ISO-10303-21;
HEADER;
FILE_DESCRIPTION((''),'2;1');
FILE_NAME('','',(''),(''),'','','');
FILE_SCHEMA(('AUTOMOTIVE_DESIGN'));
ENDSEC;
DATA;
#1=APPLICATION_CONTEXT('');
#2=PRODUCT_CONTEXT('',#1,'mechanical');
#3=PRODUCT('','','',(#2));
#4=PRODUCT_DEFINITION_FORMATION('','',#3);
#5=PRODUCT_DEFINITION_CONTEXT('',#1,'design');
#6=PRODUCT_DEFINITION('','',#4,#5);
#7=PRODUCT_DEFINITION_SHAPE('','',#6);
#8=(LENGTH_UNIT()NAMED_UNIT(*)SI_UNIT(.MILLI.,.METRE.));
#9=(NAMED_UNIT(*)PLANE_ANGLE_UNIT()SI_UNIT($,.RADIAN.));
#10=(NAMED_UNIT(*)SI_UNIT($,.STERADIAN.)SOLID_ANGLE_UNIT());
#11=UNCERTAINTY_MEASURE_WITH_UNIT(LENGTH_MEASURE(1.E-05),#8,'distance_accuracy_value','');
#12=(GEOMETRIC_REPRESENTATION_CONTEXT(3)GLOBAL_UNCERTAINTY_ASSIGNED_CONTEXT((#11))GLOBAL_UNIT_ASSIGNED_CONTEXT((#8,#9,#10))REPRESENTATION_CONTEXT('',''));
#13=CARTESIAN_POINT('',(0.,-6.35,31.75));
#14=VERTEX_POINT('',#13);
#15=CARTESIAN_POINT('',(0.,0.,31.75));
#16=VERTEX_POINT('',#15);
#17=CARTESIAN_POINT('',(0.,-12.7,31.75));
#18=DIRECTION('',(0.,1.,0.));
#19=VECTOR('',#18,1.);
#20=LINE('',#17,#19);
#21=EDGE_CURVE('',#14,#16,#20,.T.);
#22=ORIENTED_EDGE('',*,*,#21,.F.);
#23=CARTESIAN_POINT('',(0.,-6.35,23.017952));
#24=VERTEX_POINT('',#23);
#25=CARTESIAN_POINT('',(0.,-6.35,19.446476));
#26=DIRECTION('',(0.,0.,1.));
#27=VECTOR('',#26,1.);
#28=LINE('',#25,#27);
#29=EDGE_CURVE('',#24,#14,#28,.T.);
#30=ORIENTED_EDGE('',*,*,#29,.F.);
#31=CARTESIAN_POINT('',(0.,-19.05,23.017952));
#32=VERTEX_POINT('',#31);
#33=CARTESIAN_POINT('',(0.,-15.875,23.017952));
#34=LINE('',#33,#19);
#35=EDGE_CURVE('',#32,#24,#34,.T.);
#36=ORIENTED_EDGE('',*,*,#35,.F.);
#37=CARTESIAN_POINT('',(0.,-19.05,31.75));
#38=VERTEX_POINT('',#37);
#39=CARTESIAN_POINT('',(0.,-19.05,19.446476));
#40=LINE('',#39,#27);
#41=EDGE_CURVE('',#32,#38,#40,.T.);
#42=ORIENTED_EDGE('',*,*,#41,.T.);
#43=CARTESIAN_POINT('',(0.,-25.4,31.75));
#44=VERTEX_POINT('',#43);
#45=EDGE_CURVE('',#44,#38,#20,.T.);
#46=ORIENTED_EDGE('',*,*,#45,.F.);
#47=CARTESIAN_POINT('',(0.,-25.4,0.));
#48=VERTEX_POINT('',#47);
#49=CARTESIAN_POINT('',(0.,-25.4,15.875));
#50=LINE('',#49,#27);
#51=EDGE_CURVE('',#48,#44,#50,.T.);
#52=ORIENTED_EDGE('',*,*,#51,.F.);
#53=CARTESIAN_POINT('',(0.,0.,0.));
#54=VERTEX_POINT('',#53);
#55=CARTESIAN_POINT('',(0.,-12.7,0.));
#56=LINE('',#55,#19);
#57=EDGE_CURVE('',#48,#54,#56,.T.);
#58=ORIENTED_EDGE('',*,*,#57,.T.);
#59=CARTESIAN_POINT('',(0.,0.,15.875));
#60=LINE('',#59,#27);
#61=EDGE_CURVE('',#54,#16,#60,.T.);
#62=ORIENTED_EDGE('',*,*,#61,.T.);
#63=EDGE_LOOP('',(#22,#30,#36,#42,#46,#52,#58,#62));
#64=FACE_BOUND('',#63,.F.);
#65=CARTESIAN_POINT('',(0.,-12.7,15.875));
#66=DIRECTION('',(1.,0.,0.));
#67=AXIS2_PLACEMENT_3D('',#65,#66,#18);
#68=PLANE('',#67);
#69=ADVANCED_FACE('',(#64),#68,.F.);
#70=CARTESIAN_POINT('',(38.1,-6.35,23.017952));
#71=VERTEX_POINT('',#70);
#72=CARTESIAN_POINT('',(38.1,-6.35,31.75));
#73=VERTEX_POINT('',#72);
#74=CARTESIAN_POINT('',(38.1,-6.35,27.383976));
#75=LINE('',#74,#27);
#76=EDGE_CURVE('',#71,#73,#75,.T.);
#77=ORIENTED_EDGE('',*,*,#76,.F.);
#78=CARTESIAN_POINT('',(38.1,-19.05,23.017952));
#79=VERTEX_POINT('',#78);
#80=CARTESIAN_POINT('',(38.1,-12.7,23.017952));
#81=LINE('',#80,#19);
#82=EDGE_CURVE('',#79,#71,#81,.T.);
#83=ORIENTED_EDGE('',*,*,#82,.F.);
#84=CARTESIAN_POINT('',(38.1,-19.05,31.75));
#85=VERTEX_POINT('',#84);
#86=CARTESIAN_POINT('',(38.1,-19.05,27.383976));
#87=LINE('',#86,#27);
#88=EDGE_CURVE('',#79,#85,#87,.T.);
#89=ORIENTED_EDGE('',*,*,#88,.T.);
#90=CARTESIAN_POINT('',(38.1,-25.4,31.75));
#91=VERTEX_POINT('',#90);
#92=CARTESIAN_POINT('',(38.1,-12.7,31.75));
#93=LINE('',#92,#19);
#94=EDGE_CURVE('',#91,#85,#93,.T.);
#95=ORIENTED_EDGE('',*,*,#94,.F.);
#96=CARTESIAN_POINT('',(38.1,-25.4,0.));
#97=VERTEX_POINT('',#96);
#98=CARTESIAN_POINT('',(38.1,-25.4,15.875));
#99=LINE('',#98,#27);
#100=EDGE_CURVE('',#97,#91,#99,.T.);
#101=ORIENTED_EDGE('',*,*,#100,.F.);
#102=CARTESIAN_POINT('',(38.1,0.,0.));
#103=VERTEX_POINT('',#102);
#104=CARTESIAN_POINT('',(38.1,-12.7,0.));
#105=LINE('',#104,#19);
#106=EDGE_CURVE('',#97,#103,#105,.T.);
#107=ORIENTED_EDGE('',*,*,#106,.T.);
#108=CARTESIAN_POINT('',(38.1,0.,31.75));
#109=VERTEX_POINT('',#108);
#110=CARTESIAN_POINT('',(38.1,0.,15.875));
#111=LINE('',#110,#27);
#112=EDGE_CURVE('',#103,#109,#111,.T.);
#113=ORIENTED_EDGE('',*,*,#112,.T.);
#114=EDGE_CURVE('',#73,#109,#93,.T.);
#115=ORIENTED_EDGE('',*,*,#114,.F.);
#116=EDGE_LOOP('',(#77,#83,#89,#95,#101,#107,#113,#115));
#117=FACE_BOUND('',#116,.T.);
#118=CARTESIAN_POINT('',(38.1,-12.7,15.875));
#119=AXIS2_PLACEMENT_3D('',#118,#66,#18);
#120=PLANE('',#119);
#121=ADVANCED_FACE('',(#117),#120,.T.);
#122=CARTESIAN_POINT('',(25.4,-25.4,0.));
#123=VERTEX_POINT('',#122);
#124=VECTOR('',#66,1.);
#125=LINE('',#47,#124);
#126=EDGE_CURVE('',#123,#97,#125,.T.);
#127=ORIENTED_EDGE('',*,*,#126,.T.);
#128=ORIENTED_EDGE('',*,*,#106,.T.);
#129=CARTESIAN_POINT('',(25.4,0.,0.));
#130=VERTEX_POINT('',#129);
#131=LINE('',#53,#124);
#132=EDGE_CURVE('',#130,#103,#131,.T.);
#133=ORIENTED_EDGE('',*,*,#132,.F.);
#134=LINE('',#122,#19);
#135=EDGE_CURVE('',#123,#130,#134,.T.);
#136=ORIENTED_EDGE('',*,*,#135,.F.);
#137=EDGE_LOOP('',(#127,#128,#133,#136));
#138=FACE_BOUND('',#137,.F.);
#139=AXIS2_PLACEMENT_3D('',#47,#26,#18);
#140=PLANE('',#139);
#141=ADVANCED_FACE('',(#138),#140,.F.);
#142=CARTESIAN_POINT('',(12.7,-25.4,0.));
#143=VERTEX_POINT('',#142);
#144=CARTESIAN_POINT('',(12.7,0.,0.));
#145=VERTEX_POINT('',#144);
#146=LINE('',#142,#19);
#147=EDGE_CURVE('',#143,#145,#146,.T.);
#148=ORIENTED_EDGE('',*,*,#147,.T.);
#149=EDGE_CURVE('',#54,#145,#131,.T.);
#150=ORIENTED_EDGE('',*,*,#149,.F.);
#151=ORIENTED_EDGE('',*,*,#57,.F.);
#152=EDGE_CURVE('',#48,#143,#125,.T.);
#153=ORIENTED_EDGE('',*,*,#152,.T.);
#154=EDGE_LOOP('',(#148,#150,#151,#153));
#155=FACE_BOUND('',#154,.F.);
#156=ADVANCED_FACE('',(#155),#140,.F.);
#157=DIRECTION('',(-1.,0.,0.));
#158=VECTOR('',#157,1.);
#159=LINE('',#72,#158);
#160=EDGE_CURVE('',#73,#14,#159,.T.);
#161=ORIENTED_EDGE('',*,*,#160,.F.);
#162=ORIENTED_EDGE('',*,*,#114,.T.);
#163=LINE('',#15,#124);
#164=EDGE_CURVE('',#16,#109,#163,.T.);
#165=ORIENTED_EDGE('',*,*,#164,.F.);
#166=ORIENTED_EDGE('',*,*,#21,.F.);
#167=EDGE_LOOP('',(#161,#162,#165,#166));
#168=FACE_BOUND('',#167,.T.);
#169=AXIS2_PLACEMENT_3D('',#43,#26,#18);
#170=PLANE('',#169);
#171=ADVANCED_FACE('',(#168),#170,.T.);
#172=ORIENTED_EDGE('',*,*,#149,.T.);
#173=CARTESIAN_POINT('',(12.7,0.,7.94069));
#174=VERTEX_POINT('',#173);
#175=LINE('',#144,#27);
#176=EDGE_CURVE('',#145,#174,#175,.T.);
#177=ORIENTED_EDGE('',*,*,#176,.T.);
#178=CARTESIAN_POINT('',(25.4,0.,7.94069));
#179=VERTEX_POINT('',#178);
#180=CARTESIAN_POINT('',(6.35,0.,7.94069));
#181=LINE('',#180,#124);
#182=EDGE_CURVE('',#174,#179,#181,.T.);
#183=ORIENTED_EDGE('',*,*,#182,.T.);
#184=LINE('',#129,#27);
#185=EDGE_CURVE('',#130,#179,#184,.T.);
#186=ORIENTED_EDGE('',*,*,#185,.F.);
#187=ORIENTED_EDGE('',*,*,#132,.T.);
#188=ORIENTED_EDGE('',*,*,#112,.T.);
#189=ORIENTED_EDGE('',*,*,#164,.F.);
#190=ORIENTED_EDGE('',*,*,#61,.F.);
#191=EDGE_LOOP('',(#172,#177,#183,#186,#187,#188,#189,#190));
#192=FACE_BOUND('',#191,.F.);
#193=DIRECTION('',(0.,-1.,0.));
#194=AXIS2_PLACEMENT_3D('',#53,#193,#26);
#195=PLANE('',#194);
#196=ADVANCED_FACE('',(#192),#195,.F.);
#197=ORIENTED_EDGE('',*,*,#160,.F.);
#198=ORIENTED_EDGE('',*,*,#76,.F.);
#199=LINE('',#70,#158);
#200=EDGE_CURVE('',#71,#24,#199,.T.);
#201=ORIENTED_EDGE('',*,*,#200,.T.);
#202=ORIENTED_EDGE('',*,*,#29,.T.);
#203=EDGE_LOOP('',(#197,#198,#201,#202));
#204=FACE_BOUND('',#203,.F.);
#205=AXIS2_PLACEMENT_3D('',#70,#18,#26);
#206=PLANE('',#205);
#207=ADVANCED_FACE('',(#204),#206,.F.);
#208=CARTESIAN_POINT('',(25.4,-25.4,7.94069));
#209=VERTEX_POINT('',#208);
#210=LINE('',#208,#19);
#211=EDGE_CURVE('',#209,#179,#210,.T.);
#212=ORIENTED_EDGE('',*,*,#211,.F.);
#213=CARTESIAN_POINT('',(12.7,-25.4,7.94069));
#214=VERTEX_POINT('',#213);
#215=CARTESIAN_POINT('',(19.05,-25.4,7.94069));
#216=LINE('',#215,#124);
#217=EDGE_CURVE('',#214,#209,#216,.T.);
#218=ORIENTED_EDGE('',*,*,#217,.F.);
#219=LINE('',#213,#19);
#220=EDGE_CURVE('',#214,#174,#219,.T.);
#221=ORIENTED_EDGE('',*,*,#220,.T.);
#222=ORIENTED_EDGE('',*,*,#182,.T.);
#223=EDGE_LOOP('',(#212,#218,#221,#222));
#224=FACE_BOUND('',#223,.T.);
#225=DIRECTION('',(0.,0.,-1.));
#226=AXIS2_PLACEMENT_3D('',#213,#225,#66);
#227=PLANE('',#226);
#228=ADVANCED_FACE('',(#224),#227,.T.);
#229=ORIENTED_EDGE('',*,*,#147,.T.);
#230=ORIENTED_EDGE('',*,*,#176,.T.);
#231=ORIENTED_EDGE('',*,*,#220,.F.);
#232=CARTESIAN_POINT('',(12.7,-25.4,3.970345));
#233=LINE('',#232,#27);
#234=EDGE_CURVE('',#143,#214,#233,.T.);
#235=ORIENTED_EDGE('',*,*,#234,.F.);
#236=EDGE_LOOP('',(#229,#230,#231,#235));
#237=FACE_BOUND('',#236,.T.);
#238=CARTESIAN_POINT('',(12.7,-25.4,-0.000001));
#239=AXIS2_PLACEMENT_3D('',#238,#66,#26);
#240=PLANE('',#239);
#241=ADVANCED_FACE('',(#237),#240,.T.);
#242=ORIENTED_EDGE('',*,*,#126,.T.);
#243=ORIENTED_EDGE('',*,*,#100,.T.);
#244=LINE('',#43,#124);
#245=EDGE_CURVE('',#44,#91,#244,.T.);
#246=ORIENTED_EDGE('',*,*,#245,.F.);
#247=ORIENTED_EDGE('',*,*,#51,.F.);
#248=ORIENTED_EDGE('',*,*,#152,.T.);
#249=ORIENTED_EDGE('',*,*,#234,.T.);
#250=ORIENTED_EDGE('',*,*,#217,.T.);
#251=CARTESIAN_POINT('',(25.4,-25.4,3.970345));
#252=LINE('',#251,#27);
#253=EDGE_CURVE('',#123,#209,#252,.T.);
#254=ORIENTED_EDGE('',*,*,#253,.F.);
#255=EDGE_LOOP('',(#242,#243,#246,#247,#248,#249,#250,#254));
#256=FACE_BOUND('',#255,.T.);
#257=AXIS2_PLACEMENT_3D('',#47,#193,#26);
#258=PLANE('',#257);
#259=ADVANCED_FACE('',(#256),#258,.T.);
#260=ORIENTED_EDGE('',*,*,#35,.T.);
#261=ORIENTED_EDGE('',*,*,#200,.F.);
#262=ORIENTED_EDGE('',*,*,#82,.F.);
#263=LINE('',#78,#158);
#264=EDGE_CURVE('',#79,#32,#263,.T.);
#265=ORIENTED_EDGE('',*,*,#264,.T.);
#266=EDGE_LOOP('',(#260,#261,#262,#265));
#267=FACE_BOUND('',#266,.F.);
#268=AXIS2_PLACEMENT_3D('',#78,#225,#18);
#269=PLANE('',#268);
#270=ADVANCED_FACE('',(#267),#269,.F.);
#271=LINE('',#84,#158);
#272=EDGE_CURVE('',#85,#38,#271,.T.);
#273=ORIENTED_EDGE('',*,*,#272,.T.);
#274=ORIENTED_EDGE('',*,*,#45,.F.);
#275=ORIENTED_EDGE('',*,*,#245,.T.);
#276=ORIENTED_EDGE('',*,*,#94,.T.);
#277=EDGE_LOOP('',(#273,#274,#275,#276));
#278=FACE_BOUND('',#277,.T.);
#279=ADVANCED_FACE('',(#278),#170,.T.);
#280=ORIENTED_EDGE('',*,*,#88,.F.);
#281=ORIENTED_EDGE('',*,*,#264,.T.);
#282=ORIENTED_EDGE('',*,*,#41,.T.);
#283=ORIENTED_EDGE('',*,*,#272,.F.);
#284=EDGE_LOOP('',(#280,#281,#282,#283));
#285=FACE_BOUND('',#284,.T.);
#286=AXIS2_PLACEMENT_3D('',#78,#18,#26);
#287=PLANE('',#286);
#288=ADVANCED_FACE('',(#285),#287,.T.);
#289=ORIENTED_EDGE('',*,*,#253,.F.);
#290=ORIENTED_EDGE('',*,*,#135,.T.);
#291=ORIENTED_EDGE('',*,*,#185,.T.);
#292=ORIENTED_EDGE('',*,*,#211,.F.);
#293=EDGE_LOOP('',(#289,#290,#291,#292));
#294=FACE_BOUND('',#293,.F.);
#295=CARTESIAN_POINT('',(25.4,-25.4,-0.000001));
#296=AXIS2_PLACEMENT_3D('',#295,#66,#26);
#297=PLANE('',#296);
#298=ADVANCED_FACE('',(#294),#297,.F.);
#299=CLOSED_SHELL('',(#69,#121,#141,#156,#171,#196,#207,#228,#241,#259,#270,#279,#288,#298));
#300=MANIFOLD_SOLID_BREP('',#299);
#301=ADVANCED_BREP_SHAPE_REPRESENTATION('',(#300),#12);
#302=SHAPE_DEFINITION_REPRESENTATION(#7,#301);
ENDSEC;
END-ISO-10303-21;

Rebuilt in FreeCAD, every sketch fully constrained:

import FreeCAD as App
import Part
import Sketcher
Q = App.Units.Quantity

doc = App.newDocument("Part")
body = doc.addObject("PartDesign::Body", "Body")

# Sketch on YZ plane
sketch1 = body.newObject("Sketcher::SketchObject", "Sketch")
sketch1.AttachmentSupport = (doc.getObject("YZ_Plane"), [""])
sketch1.MapMode = "FlatFace"
sketch1.addGeometry(Part.LineSegment(App.Vector(-25, 32, 0), App.Vector(-25, 0, 0)), False)
sketch1.addGeometry(Part.LineSegment(App.Vector(-25, 0, 0), App.Vector(0, 0, 0)), False)
sketch1.addGeometry(Part.LineSegment(App.Vector(0, 0, 0), App.Vector(0, 32, 0)), False)
sketch1.addGeometry(Part.LineSegment(App.Vector(0, 32, 0), App.Vector(-25, 32, 0)), False)
sketch1.addConstraint(Sketcher.Constraint("Coincident", 0, 2, 1, 1))
sketch1.addConstraint(Sketcher.Constraint("Coincident", 1, 2, 2, 1))
sketch1.addConstraint(Sketcher.Constraint("Coincident", 2, 2, 3, 1))
sketch1.addConstraint(Sketcher.Constraint("Coincident", 3, 2, 0, 1))
sketch1.addConstraint(Sketcher.Constraint("Vertical", 0))
sketch1.addConstraint(Sketcher.Constraint("Horizontal", 1))
sketch1.addConstraint(Sketcher.Constraint("Vertical", 2))
sketch1.addConstraint(Sketcher.Constraint("Horizontal", 3))
sketch1.addConstraint(Sketcher.Constraint("Coincident", 1, 2, -1, 1))
sketch1.addConstraint(Sketcher.Constraint("DistanceX", 1, 1, 1, 2, Q("1 in")))
sketch1.addConstraint(Sketcher.Constraint("DistanceY", 0, 2, 0, 1, Q("1.25 in")))
pad1 = body.newObject("PartDesign::Pad", "Pad")
pad1.Profile = sketch1
pad1.Length = Q("1.5 in")

# Sketch on YZ plane
sketch2 = body.newObject("Sketcher::SketchObject", "Sketch001")
sketch2.AttachmentSupport = (doc.getObject("YZ_Plane"), [""])
sketch2.MapMode = "FlatFace"
sketch2.AttachmentOffset = App.Placement(App.Vector(0, 0, 1.5 * 25.4), App.Rotation())
sketch2.addGeometry(Part.LineSegment(App.Vector(-19, 32, 0), App.Vector(-19, 23, 0)), False)
sketch2.addGeometry(Part.LineSegment(App.Vector(-19, 23, 0), App.Vector(-6, 23, 0)), False)
sketch2.addGeometry(Part.LineSegment(App.Vector(-6, 23, 0), App.Vector(-6, 32, 0)), False)
sketch2.addGeometry(Part.LineSegment(App.Vector(-6, 32, 0), App.Vector(-19, 32, 0)), False)
sketch2.addConstraint(Sketcher.Constraint("Coincident", 0, 2, 1, 1))
sketch2.addConstraint(Sketcher.Constraint("Coincident", 1, 2, 2, 1))
sketch2.addConstraint(Sketcher.Constraint("Coincident", 2, 2, 3, 1))
sketch2.addConstraint(Sketcher.Constraint("Coincident", 3, 2, 0, 1))
sketch2.addConstraint(Sketcher.Constraint("Vertical", 0))
sketch2.addConstraint(Sketcher.Constraint("Horizontal", 1))
sketch2.addConstraint(Sketcher.Constraint("Vertical", 2))
sketch2.addConstraint(Sketcher.Constraint("Horizontal", 3))
sketch2.addConstraint(Sketcher.Constraint("DistanceX", 1, 1, 1, 2, Q("0.5 in")))
sketch2.addConstraint(Sketcher.Constraint("DistanceX", 0, 2, -1, 1, Q("0.75 in")))
sketch2.addConstraint(Sketcher.Constraint("DistanceY", -1, 1, 2, 2, Q("1.25 in")))
sketch2.addConstraint(Sketcher.Constraint("DistanceY", 0, 2, 0, 1, 8.732048))
pocket1 = body.newObject("PartDesign::Pocket", "Pocket")
pocket1.Profile = sketch2
pocket1.Type = "ThroughAll"

# Sketch on XZ plane
sketch3 = body.newObject("Sketcher::SketchObject", "Sketch002")
sketch3.AttachmentSupport = (doc.getObject("XZ_Plane"), [""])
sketch3.MapMode = "FlatFace"
sketch3.AttachmentOffset = App.Placement(App.Vector(0, 0, 1 * 25.4), App.Rotation())
sketch3.addGeometry(Part.LineSegment(App.Vector(13, 8, 0), App.Vector(13, 0, 0)), False)
sketch3.addGeometry(Part.LineSegment(App.Vector(13, 0, 0), App.Vector(25, 0, 0)), False)
sketch3.addGeometry(Part.LineSegment(App.Vector(25, 0, 0), App.Vector(25, 8, 0)), False)
sketch3.addGeometry(Part.LineSegment(App.Vector(25, 8, 0), App.Vector(13, 8, 0)), False)
sketch3.addConstraint(Sketcher.Constraint("Coincident", 0, 2, 1, 1))
sketch3.addConstraint(Sketcher.Constraint("Coincident", 1, 2, 2, 1))
sketch3.addConstraint(Sketcher.Constraint("Coincident", 2, 2, 3, 1))
sketch3.addConstraint(Sketcher.Constraint("Coincident", 3, 2, 0, 1))
sketch3.addConstraint(Sketcher.Constraint("Vertical", 0))
sketch3.addConstraint(Sketcher.Constraint("Horizontal", 1))
sketch3.addConstraint(Sketcher.Constraint("Vertical", 2))
sketch3.addConstraint(Sketcher.Constraint("Horizontal", 3))
sketch3.addConstraint(Sketcher.Constraint("PointOnObject", 0, 2, -1))
sketch3.addConstraint(Sketcher.Constraint("DistanceX", 1, 1, 1, 2, Q("0.5 in")))
sketch3.addConstraint(Sketcher.Constraint("DistanceX", -1, 1, 1, 2, Q("1 in")))
sketch3.addConstraint(Sketcher.Constraint("DistanceY", 0, 2, 0, 1, 7.940691))
pocket2 = body.newObject("PartDesign::Pocket", "Pocket001")
pocket2.Profile = sketch3
pocket2.Type = "ThroughAll"

doc.recompute()
